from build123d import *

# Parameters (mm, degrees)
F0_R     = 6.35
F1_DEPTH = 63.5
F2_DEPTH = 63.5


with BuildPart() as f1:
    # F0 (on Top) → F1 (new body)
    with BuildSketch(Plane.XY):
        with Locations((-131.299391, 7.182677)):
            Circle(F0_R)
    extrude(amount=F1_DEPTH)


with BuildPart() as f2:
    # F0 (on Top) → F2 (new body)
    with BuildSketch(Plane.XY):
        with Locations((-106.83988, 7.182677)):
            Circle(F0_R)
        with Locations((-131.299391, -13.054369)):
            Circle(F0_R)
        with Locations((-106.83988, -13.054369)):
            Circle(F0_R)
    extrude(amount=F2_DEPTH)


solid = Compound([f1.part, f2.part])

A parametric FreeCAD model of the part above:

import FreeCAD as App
import Part
import Sketcher

V = App.Vector
Q = App.Units.Quantity

doc = App.newDocument("Part")
body = doc.addObject("PartDesign::Body", "Body")

sketch1 = doc.addObject("Sketcher::SketchObject", "Sketch")
body.addObject(sketch1)
sketch1.AttachmentSupport = (doc.XY_Plane, [""])
sketch1.MapMode = "FlatFace"
sketch1.addGeometry(Part.Circle(V(-131, 7, 0), V(0, 0, 1), 6), False)
sketch1.addConstraint([
    Sketcher.Constraint("Diameter", 0, Q("0.5 in")),
    Sketcher.Constraint("DistanceX", 0, 3, -1, 1, 131.299391),
    Sketcher.Constraint("DistanceY", -1, 1, 0, 3, 7.182677),
])
pad1 = doc.addObject("PartDesign::Pad", "Pad")
body.addObject(pad1)
pad1.Profile = sketch1
pad1.Length = Q("2.5 in")
body2 = doc.addObject("PartDesign::Body", "Body001")
body2.AllowCompound = True

sketch2 = doc.addObject("Sketcher::SketchObject", "Sketch001")
body2.addObject(sketch2)
sketch2.AttachmentSupport = (doc.getObject("XY_Plane001"), [""])
sketch2.MapMode = "FlatFace"
sketch2.addGeometry([
    Part.Circle(V(-107, 7, 0), V(0, 0, 1), 6),
    Part.Circle(V(-131, -13, 0), V(0, 0, 1), 6),
    Part.Circle(V(-107, -13, 0), V(0, 0, 1), 6),
], False)
sketch2.addConstraint([
    Sketcher.Constraint("Equal", 0, 1),
    Sketcher.Constraint("Equal", 1, 2),
    Sketcher.Constraint("Horizontal", 1, 3, 2, 3),
    Sketcher.Constraint("Vertical", 0, 3, 2, 3),
    Sketcher.Constraint("Diameter", 0, Q("0.5 in")),
    Sketcher.Constraint("DistanceX", 0, 3, -1, 1, 106.83988),
    Sketcher.Constraint("DistanceX", 1, 3, -1, 1, 131.299391),
    Sketcher.Constraint("DistanceY", 1, 3, -1, 1, 13.054369),
    Sketcher.Constraint("DistanceY", -1, 1, 0, 3, 7.182677),
])
pad2 = doc.addObject("PartDesign::Pad", "Pad001")
body2.addObject(pad2)
pad2.Profile = sketch2
pad2.Length = Q("2.5 in")

doc.recompute()
